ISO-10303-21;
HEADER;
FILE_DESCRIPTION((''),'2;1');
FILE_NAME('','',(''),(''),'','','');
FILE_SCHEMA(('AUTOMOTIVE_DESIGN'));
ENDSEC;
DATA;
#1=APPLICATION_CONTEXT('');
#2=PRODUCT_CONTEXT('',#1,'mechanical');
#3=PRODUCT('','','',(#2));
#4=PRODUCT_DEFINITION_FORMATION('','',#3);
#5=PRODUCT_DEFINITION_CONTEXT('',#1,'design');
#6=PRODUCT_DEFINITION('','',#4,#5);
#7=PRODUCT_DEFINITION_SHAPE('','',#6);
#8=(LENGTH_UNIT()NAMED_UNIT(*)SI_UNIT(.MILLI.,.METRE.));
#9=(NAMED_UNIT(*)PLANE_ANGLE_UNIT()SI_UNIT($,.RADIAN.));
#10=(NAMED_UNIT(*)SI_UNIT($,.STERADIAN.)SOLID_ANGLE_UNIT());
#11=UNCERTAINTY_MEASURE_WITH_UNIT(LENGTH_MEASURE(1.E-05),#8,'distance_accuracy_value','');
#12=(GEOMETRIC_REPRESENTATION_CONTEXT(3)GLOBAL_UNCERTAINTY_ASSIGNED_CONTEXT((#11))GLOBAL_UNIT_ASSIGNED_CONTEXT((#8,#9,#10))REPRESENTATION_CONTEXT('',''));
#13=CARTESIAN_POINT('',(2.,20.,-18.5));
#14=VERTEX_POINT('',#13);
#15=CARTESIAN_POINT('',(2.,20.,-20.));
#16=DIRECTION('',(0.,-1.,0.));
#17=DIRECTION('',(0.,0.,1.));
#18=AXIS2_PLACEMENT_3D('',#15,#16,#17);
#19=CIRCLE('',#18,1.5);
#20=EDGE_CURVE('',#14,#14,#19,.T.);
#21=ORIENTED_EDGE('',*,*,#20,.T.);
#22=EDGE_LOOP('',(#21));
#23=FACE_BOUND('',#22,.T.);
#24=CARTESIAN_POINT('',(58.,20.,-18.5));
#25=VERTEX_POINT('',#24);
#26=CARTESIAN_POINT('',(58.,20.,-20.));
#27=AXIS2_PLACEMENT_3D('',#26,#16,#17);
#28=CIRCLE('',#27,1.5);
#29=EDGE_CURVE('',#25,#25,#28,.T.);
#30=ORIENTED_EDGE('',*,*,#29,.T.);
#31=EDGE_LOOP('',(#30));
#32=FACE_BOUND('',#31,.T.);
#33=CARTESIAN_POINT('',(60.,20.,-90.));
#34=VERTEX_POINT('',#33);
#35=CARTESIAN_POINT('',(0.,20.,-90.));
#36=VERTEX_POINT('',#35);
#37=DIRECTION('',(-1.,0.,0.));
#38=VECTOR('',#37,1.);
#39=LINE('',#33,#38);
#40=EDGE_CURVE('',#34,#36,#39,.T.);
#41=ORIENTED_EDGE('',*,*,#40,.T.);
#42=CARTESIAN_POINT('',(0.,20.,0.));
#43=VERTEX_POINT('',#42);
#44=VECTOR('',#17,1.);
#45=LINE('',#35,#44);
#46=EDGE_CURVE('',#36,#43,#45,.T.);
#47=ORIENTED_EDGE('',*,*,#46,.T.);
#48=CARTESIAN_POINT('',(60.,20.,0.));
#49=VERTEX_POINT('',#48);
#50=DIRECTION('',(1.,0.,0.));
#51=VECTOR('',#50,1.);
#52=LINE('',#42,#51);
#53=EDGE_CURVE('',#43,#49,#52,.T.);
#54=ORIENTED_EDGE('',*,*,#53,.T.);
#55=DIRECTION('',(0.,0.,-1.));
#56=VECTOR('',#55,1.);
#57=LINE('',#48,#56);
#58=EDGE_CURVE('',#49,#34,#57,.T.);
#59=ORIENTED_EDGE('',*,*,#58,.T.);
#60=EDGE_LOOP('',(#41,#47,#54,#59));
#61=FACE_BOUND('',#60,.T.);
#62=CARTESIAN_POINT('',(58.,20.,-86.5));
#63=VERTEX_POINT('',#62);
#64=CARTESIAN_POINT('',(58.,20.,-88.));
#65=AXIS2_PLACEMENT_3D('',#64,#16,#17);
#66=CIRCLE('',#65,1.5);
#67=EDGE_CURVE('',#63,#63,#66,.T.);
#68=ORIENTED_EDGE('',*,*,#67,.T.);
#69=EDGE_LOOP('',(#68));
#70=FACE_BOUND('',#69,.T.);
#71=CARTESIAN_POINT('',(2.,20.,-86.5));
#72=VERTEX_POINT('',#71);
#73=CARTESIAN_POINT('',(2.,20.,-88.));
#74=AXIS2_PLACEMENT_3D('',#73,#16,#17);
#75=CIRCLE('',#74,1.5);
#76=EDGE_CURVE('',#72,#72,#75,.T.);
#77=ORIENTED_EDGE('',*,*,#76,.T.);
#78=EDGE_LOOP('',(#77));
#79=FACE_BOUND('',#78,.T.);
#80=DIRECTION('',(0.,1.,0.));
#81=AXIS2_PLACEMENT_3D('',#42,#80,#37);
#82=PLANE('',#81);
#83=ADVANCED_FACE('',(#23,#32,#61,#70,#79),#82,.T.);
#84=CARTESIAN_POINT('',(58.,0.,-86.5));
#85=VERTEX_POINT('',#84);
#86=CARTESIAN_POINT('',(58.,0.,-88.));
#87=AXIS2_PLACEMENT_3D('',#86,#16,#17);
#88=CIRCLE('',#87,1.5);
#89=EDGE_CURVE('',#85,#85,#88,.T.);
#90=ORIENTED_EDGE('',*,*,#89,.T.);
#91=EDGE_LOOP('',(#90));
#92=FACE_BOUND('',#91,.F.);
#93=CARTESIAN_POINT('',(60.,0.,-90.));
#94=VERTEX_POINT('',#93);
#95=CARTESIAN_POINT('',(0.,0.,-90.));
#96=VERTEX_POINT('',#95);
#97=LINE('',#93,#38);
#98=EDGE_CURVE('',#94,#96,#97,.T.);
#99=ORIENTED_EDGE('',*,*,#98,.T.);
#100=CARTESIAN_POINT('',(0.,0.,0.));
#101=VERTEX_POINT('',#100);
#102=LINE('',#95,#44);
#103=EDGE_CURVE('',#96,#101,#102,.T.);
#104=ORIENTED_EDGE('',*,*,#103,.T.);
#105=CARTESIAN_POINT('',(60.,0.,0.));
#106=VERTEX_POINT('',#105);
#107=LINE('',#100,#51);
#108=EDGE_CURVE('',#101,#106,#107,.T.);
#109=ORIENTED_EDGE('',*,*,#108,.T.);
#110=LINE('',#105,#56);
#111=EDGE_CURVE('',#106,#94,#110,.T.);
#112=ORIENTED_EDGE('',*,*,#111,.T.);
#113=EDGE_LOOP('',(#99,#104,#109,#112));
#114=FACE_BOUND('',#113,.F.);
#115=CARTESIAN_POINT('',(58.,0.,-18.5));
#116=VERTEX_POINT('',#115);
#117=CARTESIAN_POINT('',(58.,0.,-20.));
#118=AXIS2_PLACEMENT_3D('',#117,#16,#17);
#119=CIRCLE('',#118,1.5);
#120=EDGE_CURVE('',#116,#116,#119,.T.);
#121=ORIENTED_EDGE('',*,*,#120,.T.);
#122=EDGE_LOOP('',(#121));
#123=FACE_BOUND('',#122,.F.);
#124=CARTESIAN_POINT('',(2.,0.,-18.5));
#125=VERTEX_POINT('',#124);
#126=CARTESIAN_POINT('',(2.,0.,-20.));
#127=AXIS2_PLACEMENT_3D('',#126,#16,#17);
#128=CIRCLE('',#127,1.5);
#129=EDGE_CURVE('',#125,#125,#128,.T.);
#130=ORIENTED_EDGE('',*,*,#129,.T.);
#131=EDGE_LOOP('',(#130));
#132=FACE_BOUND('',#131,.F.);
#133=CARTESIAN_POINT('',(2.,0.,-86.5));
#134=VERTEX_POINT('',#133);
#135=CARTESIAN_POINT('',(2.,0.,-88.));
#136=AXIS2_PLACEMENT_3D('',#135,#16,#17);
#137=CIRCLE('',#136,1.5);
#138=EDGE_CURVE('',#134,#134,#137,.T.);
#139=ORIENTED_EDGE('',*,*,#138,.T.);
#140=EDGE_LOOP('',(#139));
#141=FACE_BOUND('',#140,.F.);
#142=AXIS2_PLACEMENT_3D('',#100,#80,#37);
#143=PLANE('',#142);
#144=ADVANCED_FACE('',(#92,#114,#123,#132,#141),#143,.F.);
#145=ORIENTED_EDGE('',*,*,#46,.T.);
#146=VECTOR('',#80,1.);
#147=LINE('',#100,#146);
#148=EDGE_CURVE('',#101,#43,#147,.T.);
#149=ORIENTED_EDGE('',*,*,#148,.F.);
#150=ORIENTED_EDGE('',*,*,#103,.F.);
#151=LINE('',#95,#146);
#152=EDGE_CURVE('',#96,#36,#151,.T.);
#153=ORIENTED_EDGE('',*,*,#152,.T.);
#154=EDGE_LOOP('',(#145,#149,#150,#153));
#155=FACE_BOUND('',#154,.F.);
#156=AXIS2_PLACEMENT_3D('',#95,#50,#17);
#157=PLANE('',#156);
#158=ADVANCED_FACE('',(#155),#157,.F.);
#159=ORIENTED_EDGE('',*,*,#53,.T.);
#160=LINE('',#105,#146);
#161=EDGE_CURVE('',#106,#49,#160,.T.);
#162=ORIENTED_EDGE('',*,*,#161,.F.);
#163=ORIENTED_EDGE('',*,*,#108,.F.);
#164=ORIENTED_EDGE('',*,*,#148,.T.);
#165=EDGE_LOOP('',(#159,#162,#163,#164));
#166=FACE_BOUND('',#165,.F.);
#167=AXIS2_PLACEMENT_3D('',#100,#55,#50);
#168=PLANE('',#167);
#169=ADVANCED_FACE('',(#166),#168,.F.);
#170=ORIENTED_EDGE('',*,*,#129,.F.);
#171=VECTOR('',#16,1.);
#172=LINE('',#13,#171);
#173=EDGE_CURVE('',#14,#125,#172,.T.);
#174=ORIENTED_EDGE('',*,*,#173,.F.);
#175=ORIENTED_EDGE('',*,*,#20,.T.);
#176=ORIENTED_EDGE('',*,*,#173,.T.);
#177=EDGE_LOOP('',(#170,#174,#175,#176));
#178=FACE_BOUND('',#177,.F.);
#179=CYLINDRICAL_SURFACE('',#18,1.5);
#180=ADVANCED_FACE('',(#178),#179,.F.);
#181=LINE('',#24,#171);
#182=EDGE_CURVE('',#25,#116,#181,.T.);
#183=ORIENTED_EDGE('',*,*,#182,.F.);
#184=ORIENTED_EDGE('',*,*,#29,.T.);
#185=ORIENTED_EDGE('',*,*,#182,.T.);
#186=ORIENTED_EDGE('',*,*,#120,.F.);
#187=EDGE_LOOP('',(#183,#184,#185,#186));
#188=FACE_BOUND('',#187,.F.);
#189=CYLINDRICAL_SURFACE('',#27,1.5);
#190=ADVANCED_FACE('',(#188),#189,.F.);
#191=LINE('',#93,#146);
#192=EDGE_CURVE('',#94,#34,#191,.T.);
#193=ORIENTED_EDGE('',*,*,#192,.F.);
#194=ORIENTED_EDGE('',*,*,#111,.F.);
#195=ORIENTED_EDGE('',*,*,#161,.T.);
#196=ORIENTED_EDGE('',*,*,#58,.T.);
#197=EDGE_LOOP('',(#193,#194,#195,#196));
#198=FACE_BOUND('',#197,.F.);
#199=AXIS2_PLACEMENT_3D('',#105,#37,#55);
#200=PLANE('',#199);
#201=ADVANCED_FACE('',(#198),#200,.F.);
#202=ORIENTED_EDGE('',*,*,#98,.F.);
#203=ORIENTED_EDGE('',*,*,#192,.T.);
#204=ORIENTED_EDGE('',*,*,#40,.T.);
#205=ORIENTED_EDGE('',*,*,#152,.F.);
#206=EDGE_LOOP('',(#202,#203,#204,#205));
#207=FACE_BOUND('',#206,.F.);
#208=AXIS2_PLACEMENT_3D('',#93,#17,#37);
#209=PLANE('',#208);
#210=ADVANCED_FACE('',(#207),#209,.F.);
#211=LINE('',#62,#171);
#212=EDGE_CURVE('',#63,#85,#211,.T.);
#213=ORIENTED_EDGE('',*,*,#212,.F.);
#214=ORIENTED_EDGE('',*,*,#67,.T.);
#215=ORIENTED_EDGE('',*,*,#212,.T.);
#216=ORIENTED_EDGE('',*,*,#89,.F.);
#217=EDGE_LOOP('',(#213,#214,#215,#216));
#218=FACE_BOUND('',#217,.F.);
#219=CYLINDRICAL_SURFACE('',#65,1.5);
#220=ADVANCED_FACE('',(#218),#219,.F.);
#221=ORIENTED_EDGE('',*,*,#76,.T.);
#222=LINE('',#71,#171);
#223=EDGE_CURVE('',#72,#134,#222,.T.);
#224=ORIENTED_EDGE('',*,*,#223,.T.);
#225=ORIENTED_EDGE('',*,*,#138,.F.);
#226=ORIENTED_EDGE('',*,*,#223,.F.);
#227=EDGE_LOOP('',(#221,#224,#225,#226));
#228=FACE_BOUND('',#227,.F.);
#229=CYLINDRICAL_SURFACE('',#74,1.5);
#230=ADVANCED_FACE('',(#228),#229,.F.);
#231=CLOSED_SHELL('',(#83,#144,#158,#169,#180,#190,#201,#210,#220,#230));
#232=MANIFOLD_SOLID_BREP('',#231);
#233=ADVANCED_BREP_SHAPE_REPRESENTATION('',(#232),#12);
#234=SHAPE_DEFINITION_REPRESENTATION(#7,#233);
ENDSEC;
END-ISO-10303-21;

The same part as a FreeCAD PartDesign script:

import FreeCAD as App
import Part
import Sketcher

doc = App.newDocument("Part")
body = doc.addObject("PartDesign::Body", "Body")

# Sketch on XZ plane
sketch1 = body.newObject("Sketcher::SketchObject", "Sketch")
sketch1.AttachmentSupport = (doc.getObject("XZ_Plane"), [""])
sketch1.MapMode = "FlatFace"
sketch1.addGeometry(Part.LineSegment(App.Vector(0, -90, 0), App.Vector(0, 0, 0)), False)
sketch1.addGeometry(Part.LineSegment(App.Vector(0, 0, 0), App.Vector(60, 0, 0)), False)
sketch1.addGeometry(Part.LineSegment(App.Vector(60, 0, 0), App.Vector(60, -90, 0)), False)
sketch1.addGeometry(Part.LineSegment(App.Vector(60, -90, 0), App.Vector(0, -90, 0)), False)
sketch1.addConstraint(Sketcher.Constraint("Coincident", 0, 2, 1, 1))
sketch1.addConstraint(Sketcher.Constraint("Coincident", 1, 2, 2, 1))
sketch1.addConstraint(Sketcher.Constraint("Coincident", 2, 2, 3, 1))
sketch1.addConstraint(Sketcher.Constraint("Coincident", 3, 2, 0, 1))
sketch1.addConstraint(Sketcher.Constraint("Vertical", 0))
sketch1.addConstraint(Sketcher.Constraint("Horizontal", 1))
sketch1.addConstraint(Sketcher.Constraint("Vertical", 2))
sketch1.addConstraint(Sketcher.Constraint("Horizontal", 3))
sketch1.addConstraint(Sketcher.Constraint("Coincident", 0, 2, -1, 1))
sketch1.addConstraint(Sketcher.Constraint("DistanceX", 1, 1, 1, 2, 60.0))
sketch1.addConstraint(Sketcher.Constraint("DistanceY", 0, 1, 0, 2, 90.0))
pad1 = body.newObject("PartDesign::Pad", "Pad")
pad1.Profile = sketch1
pad1.Length = 20
pad1.Reversed = True

# Sketch on XZ plane
sketch2 = body.newObject("Sketcher::SketchObject", "Sketch001")
sketch2.AttachmentSupport = (doc.getObject("XZ_Plane"), [""])
sketch2.MapMode = "FlatFace"
sketch2.AttachmentOffset = App.Placement(App.Vector(0, 0, -20), App.Rotation())
sketch2.addGeometry(Part.Circle(App.Vector(58, -88, 0), App.Vector(0, 0, 1), 1.5), False)
sketch2.addGeometry(Part.Circle(App.Vector(58, -20, 0), App.Vector(0, 0, 1), 1.5), False)
sketch2.addGeometry(Part.Circle(App.Vector(2, -88, 0), App.Vector(0, 0, 1), 1.5), False)
sketch2.addGeometry(Part.Circle(App.Vector(2, -20, 0), App.Vector(0, 0, 1), 1.5), False)
sketch2.addConstraint(Sketcher.Constraint("Equal", 0, 1))
sketch2.addConstraint(Sketcher.Constraint("Equal", 1, 2))
sketch2.addConstraint(Sketcher.Constraint("Equal", 2, 3))
sketch2.addConstraint(Sketcher.Constraint("Horizontal", 0, 3, 2, 3))
sketch2.addConstraint(Sketcher.Constraint("Horizontal", 1, 3, 3, 3))
sketch2.addConstraint(Sketcher.Constraint("Vertical", 0, 3, 1, 3))
sketch2.addConstraint(Sketcher.Constraint("Vertical", 2, 3, 3, 3))
sketch2.addConstraint(Sketcher.Constraint("Diameter", 0, 3.0))
sketch2.addConstraint(Sketcher.Constraint("DistanceX", -1, 1, 0, 3, 58.0))
sketch2.addConstraint(Sketcher.Constraint("DistanceY", 0, 3, -1, 1, 88.0))
sketch2.addConstraint(Sketcher.Constraint("DistanceY", 1, 3, -1, 1, 20.0))
sketch2.addConstraint(Sketcher.Constraint("DistanceX", -1, 1, 2, 3, 2.0))
doc.recompute()
hole = body.newObject("PartDesign::Hole", "Hole")
hole.Profile = sketch2
hole.ThreadType = "None"
hole.Diameter = 3
hole.DepthType = "ThroughAll"
hole.Reversed = True

doc.recompute()
